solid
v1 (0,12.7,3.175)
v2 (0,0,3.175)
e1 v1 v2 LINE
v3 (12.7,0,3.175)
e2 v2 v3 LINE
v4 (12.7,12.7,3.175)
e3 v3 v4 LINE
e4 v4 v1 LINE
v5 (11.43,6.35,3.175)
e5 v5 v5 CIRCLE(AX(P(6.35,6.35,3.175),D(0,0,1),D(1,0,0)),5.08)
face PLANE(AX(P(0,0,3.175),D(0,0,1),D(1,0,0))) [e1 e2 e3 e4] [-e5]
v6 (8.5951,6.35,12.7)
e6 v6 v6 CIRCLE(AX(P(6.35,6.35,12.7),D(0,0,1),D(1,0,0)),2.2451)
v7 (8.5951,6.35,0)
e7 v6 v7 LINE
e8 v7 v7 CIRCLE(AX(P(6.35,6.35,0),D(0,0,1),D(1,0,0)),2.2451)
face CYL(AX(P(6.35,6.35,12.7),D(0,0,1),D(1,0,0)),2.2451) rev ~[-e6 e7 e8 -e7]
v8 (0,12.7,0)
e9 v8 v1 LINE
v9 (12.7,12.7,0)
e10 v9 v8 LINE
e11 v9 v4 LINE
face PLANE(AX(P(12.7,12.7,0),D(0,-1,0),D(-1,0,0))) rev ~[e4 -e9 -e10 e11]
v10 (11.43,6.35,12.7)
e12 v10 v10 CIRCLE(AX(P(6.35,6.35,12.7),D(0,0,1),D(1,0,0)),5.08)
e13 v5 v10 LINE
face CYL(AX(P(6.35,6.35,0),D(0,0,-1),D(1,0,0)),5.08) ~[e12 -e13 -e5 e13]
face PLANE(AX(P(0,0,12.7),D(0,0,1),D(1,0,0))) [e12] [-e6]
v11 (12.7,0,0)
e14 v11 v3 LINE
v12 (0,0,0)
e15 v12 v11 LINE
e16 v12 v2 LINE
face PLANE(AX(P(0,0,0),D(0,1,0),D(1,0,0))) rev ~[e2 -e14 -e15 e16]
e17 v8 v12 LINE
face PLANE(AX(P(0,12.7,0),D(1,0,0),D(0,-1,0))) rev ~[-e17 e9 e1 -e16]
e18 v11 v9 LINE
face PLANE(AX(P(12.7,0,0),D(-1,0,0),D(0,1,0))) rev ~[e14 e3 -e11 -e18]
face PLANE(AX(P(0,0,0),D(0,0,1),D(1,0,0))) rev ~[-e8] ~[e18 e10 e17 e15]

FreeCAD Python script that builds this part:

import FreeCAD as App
import Part
import Sketcher

V = App.Vector
Q = App.Units.Quantity


def add_polygon(sketch, points):
    """Adds a closed chain of lines whose ends are joined by coincident constraints."""
    first, n = sketch.GeometryCount, len(points)
    for a, b in zip(points, points[1:] + points[:1]):
        sketch.addGeometry(Part.LineSegment(App.Vector(*a, 0), App.Vector(*b, 0)), False)
    for i in range(n):
        sketch.addConstraint(Sketcher.Constraint("Coincident", first + i, 2, first + (i + 1) % n, 1))

doc = App.newDocument("Part")
body = doc.addObject("PartDesign::Body", "Body")

sketch1 = body.newObject("Sketcher::SketchObject", "Sketch")
sketch1.AttachmentSupport = (doc.getObject("XY_Plane"), [""])
sketch1.MapMode = "FlatFace"
add_polygon(sketch1, [(0, 13), (0, 0), (13, 0), (13, 13)])
sketch1.addGeometry(Part.Circle(V(6, 6, 0), V(0, 0, 1), 5), False)
sketch1.addConstraint(Sketcher.Constraint("Vertical", 0))
sketch1.addConstraint(Sketcher.Constraint("Horizontal", 1))
sketch1.addConstraint(Sketcher.Constraint("Vertical", 2))
sketch1.addConstraint(Sketcher.Constraint("Horizontal", 3))
sketch1.addConstraint(Sketcher.Constraint("Coincident", 0, 2, -1, 1))
sketch1.addConstraint(Sketcher.Constraint("Equal", 3, 0))
sketch1.addConstraint(Sketcher.Constraint("Diameter", 4, Q("0.4 in")))
sketch1.addConstraint(Sketcher.Constraint("DistanceX", 1, 1, 1, 2, Q("0.5 in")))
sketch1.addConstraint(Sketcher.Constraint("DistanceX", -1, 1, 4, 3, Q("0.25 in")))
sketch1.addConstraint(Sketcher.Constraint("DistanceY", -1, 1, 4, 3, Q("0.25 in")))
pad1 = body.newObject("PartDesign::Pad", "Pad")
pad1.Profile = sketch1
pad1.Length = Q("0.125 in")

sketch2 = body.newObject("Sketcher::SketchObject", "Sketch001")
sketch2.AttachmentSupport = (doc.getObject("XY_Plane"), [""])
sketch2.MapMode = "FlatFace"
sketch2.addGeometry(Part.Circle(V(6, 6, 0), V(0, 0, 1), 5), False)
sketch2.addConstraint(Sketcher.Constraint("Diameter", 0, Q("0.4 in")))
sketch2.addConstraint(Sketcher.Constraint("DistanceX", -1, 1, 0, 3, Q("0.25 in")))
sketch2.addConstraint(Sketcher.Constraint("DistanceY", -1, 1, 0, 3, Q("0.25 in")))
pad2 = body.newObject("PartDesign::Pad", "Pad001")
pad2.Profile = sketch2
pad2.Length = Q("0.5 in")

sketch3 = body.newObject("Sketcher::SketchObject", "Sketch002")
sketch3.AttachmentSupport = (doc.getObject("XY_Plane"), [""])
sketch3.MapMode = "FlatFace"
sketch3.AttachmentOffset = App.Placement(V(0, 0, 0.5 * 25.4), App.Rotation())
sketch3.addGeometry(Part.Circle(V(6.3, 6.3, 0), V(0, 0, 1), 2.2), False)
sketch3.addConstraint(Sketcher.Constraint("Diameter", 0, 4.4902))
sketch3.addConstraint(Sketcher.Constraint("DistanceX", -1, 1, 0, 3, Q("0.25 in")))
sketch3.addConstraint(Sketcher.Constraint("DistanceY", -1, 1, 0, 3, Q("0.25 in")))
pocket1 = body.newObject("PartDesign::Pocket", "Pocket")
pocket1.Profile = sketch3
pocket1.Length = Q("1 in")

doc.recompute()
